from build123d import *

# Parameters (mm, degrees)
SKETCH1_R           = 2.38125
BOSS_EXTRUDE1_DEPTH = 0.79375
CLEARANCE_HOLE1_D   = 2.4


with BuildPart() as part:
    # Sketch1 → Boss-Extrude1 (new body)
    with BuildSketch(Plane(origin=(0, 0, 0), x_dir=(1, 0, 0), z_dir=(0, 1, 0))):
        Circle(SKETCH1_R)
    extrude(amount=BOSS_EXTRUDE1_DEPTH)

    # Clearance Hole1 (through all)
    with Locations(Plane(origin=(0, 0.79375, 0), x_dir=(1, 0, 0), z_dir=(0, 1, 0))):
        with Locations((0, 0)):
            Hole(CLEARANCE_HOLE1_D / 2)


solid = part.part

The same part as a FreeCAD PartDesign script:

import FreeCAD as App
import Part
import Sketcher

V = App.Vector
Q = App.Units.Quantity

doc = App.newDocument("Part")
body = doc.addObject("PartDesign::Body", "Body")

# Sketch on XZ plane
sketch1 = body.newObject("Sketcher::SketchObject", "Sketch")
sketch1.AttachmentSupport = (doc.getObject("XZ_Plane"), [""])
sketch1.MapMode = "FlatFace"
sketch1.addGeometry(Part.Circle(V(0, 0, 0), V(0, 0, 1), 2.4), False)
sketch1.addConstraint([
    Sketcher.Constraint("Coincident", 0, 3, -1, 1),
    Sketcher.Constraint("Diameter", 0, Q("0.1875 in")),
])
pad1 = body.newObject("PartDesign::Pad", "Pad")
pad1.Profile = sketch1
pad1.Length = Q("0.03125 in")
pad1.Reversed = True

# Sketch on XZ plane
sketch2 = body.newObject("Sketcher::SketchObject", "Sketch001")
sketch2.AttachmentSupport = (doc.getObject("XZ_Plane"), [""])
sketch2.MapMode = "FlatFace"
sketch2.AttachmentOffset = App.Placement(V(0, 0, -0.03125 * 25.4), App.Rotation())
sketch2.addGeometry(Part.Circle(V(0, 0, 0), V(0, 0, 1), 1.2), False)
sketch2.addConstraint([
    Sketcher.Constraint("Coincident", 0, 3, -1, 1),
    Sketcher.Constraint("Diameter", 0, 2.4),
])
doc.recompute()
hole = body.newObject("PartDesign::Hole", "Hole")
hole.Profile = sketch2
hole.ThreadType = "None"
hole.Diameter = 2.4
hole.DepthType = "ThroughAll"
hole.Reversed = True

doc.recompute()
